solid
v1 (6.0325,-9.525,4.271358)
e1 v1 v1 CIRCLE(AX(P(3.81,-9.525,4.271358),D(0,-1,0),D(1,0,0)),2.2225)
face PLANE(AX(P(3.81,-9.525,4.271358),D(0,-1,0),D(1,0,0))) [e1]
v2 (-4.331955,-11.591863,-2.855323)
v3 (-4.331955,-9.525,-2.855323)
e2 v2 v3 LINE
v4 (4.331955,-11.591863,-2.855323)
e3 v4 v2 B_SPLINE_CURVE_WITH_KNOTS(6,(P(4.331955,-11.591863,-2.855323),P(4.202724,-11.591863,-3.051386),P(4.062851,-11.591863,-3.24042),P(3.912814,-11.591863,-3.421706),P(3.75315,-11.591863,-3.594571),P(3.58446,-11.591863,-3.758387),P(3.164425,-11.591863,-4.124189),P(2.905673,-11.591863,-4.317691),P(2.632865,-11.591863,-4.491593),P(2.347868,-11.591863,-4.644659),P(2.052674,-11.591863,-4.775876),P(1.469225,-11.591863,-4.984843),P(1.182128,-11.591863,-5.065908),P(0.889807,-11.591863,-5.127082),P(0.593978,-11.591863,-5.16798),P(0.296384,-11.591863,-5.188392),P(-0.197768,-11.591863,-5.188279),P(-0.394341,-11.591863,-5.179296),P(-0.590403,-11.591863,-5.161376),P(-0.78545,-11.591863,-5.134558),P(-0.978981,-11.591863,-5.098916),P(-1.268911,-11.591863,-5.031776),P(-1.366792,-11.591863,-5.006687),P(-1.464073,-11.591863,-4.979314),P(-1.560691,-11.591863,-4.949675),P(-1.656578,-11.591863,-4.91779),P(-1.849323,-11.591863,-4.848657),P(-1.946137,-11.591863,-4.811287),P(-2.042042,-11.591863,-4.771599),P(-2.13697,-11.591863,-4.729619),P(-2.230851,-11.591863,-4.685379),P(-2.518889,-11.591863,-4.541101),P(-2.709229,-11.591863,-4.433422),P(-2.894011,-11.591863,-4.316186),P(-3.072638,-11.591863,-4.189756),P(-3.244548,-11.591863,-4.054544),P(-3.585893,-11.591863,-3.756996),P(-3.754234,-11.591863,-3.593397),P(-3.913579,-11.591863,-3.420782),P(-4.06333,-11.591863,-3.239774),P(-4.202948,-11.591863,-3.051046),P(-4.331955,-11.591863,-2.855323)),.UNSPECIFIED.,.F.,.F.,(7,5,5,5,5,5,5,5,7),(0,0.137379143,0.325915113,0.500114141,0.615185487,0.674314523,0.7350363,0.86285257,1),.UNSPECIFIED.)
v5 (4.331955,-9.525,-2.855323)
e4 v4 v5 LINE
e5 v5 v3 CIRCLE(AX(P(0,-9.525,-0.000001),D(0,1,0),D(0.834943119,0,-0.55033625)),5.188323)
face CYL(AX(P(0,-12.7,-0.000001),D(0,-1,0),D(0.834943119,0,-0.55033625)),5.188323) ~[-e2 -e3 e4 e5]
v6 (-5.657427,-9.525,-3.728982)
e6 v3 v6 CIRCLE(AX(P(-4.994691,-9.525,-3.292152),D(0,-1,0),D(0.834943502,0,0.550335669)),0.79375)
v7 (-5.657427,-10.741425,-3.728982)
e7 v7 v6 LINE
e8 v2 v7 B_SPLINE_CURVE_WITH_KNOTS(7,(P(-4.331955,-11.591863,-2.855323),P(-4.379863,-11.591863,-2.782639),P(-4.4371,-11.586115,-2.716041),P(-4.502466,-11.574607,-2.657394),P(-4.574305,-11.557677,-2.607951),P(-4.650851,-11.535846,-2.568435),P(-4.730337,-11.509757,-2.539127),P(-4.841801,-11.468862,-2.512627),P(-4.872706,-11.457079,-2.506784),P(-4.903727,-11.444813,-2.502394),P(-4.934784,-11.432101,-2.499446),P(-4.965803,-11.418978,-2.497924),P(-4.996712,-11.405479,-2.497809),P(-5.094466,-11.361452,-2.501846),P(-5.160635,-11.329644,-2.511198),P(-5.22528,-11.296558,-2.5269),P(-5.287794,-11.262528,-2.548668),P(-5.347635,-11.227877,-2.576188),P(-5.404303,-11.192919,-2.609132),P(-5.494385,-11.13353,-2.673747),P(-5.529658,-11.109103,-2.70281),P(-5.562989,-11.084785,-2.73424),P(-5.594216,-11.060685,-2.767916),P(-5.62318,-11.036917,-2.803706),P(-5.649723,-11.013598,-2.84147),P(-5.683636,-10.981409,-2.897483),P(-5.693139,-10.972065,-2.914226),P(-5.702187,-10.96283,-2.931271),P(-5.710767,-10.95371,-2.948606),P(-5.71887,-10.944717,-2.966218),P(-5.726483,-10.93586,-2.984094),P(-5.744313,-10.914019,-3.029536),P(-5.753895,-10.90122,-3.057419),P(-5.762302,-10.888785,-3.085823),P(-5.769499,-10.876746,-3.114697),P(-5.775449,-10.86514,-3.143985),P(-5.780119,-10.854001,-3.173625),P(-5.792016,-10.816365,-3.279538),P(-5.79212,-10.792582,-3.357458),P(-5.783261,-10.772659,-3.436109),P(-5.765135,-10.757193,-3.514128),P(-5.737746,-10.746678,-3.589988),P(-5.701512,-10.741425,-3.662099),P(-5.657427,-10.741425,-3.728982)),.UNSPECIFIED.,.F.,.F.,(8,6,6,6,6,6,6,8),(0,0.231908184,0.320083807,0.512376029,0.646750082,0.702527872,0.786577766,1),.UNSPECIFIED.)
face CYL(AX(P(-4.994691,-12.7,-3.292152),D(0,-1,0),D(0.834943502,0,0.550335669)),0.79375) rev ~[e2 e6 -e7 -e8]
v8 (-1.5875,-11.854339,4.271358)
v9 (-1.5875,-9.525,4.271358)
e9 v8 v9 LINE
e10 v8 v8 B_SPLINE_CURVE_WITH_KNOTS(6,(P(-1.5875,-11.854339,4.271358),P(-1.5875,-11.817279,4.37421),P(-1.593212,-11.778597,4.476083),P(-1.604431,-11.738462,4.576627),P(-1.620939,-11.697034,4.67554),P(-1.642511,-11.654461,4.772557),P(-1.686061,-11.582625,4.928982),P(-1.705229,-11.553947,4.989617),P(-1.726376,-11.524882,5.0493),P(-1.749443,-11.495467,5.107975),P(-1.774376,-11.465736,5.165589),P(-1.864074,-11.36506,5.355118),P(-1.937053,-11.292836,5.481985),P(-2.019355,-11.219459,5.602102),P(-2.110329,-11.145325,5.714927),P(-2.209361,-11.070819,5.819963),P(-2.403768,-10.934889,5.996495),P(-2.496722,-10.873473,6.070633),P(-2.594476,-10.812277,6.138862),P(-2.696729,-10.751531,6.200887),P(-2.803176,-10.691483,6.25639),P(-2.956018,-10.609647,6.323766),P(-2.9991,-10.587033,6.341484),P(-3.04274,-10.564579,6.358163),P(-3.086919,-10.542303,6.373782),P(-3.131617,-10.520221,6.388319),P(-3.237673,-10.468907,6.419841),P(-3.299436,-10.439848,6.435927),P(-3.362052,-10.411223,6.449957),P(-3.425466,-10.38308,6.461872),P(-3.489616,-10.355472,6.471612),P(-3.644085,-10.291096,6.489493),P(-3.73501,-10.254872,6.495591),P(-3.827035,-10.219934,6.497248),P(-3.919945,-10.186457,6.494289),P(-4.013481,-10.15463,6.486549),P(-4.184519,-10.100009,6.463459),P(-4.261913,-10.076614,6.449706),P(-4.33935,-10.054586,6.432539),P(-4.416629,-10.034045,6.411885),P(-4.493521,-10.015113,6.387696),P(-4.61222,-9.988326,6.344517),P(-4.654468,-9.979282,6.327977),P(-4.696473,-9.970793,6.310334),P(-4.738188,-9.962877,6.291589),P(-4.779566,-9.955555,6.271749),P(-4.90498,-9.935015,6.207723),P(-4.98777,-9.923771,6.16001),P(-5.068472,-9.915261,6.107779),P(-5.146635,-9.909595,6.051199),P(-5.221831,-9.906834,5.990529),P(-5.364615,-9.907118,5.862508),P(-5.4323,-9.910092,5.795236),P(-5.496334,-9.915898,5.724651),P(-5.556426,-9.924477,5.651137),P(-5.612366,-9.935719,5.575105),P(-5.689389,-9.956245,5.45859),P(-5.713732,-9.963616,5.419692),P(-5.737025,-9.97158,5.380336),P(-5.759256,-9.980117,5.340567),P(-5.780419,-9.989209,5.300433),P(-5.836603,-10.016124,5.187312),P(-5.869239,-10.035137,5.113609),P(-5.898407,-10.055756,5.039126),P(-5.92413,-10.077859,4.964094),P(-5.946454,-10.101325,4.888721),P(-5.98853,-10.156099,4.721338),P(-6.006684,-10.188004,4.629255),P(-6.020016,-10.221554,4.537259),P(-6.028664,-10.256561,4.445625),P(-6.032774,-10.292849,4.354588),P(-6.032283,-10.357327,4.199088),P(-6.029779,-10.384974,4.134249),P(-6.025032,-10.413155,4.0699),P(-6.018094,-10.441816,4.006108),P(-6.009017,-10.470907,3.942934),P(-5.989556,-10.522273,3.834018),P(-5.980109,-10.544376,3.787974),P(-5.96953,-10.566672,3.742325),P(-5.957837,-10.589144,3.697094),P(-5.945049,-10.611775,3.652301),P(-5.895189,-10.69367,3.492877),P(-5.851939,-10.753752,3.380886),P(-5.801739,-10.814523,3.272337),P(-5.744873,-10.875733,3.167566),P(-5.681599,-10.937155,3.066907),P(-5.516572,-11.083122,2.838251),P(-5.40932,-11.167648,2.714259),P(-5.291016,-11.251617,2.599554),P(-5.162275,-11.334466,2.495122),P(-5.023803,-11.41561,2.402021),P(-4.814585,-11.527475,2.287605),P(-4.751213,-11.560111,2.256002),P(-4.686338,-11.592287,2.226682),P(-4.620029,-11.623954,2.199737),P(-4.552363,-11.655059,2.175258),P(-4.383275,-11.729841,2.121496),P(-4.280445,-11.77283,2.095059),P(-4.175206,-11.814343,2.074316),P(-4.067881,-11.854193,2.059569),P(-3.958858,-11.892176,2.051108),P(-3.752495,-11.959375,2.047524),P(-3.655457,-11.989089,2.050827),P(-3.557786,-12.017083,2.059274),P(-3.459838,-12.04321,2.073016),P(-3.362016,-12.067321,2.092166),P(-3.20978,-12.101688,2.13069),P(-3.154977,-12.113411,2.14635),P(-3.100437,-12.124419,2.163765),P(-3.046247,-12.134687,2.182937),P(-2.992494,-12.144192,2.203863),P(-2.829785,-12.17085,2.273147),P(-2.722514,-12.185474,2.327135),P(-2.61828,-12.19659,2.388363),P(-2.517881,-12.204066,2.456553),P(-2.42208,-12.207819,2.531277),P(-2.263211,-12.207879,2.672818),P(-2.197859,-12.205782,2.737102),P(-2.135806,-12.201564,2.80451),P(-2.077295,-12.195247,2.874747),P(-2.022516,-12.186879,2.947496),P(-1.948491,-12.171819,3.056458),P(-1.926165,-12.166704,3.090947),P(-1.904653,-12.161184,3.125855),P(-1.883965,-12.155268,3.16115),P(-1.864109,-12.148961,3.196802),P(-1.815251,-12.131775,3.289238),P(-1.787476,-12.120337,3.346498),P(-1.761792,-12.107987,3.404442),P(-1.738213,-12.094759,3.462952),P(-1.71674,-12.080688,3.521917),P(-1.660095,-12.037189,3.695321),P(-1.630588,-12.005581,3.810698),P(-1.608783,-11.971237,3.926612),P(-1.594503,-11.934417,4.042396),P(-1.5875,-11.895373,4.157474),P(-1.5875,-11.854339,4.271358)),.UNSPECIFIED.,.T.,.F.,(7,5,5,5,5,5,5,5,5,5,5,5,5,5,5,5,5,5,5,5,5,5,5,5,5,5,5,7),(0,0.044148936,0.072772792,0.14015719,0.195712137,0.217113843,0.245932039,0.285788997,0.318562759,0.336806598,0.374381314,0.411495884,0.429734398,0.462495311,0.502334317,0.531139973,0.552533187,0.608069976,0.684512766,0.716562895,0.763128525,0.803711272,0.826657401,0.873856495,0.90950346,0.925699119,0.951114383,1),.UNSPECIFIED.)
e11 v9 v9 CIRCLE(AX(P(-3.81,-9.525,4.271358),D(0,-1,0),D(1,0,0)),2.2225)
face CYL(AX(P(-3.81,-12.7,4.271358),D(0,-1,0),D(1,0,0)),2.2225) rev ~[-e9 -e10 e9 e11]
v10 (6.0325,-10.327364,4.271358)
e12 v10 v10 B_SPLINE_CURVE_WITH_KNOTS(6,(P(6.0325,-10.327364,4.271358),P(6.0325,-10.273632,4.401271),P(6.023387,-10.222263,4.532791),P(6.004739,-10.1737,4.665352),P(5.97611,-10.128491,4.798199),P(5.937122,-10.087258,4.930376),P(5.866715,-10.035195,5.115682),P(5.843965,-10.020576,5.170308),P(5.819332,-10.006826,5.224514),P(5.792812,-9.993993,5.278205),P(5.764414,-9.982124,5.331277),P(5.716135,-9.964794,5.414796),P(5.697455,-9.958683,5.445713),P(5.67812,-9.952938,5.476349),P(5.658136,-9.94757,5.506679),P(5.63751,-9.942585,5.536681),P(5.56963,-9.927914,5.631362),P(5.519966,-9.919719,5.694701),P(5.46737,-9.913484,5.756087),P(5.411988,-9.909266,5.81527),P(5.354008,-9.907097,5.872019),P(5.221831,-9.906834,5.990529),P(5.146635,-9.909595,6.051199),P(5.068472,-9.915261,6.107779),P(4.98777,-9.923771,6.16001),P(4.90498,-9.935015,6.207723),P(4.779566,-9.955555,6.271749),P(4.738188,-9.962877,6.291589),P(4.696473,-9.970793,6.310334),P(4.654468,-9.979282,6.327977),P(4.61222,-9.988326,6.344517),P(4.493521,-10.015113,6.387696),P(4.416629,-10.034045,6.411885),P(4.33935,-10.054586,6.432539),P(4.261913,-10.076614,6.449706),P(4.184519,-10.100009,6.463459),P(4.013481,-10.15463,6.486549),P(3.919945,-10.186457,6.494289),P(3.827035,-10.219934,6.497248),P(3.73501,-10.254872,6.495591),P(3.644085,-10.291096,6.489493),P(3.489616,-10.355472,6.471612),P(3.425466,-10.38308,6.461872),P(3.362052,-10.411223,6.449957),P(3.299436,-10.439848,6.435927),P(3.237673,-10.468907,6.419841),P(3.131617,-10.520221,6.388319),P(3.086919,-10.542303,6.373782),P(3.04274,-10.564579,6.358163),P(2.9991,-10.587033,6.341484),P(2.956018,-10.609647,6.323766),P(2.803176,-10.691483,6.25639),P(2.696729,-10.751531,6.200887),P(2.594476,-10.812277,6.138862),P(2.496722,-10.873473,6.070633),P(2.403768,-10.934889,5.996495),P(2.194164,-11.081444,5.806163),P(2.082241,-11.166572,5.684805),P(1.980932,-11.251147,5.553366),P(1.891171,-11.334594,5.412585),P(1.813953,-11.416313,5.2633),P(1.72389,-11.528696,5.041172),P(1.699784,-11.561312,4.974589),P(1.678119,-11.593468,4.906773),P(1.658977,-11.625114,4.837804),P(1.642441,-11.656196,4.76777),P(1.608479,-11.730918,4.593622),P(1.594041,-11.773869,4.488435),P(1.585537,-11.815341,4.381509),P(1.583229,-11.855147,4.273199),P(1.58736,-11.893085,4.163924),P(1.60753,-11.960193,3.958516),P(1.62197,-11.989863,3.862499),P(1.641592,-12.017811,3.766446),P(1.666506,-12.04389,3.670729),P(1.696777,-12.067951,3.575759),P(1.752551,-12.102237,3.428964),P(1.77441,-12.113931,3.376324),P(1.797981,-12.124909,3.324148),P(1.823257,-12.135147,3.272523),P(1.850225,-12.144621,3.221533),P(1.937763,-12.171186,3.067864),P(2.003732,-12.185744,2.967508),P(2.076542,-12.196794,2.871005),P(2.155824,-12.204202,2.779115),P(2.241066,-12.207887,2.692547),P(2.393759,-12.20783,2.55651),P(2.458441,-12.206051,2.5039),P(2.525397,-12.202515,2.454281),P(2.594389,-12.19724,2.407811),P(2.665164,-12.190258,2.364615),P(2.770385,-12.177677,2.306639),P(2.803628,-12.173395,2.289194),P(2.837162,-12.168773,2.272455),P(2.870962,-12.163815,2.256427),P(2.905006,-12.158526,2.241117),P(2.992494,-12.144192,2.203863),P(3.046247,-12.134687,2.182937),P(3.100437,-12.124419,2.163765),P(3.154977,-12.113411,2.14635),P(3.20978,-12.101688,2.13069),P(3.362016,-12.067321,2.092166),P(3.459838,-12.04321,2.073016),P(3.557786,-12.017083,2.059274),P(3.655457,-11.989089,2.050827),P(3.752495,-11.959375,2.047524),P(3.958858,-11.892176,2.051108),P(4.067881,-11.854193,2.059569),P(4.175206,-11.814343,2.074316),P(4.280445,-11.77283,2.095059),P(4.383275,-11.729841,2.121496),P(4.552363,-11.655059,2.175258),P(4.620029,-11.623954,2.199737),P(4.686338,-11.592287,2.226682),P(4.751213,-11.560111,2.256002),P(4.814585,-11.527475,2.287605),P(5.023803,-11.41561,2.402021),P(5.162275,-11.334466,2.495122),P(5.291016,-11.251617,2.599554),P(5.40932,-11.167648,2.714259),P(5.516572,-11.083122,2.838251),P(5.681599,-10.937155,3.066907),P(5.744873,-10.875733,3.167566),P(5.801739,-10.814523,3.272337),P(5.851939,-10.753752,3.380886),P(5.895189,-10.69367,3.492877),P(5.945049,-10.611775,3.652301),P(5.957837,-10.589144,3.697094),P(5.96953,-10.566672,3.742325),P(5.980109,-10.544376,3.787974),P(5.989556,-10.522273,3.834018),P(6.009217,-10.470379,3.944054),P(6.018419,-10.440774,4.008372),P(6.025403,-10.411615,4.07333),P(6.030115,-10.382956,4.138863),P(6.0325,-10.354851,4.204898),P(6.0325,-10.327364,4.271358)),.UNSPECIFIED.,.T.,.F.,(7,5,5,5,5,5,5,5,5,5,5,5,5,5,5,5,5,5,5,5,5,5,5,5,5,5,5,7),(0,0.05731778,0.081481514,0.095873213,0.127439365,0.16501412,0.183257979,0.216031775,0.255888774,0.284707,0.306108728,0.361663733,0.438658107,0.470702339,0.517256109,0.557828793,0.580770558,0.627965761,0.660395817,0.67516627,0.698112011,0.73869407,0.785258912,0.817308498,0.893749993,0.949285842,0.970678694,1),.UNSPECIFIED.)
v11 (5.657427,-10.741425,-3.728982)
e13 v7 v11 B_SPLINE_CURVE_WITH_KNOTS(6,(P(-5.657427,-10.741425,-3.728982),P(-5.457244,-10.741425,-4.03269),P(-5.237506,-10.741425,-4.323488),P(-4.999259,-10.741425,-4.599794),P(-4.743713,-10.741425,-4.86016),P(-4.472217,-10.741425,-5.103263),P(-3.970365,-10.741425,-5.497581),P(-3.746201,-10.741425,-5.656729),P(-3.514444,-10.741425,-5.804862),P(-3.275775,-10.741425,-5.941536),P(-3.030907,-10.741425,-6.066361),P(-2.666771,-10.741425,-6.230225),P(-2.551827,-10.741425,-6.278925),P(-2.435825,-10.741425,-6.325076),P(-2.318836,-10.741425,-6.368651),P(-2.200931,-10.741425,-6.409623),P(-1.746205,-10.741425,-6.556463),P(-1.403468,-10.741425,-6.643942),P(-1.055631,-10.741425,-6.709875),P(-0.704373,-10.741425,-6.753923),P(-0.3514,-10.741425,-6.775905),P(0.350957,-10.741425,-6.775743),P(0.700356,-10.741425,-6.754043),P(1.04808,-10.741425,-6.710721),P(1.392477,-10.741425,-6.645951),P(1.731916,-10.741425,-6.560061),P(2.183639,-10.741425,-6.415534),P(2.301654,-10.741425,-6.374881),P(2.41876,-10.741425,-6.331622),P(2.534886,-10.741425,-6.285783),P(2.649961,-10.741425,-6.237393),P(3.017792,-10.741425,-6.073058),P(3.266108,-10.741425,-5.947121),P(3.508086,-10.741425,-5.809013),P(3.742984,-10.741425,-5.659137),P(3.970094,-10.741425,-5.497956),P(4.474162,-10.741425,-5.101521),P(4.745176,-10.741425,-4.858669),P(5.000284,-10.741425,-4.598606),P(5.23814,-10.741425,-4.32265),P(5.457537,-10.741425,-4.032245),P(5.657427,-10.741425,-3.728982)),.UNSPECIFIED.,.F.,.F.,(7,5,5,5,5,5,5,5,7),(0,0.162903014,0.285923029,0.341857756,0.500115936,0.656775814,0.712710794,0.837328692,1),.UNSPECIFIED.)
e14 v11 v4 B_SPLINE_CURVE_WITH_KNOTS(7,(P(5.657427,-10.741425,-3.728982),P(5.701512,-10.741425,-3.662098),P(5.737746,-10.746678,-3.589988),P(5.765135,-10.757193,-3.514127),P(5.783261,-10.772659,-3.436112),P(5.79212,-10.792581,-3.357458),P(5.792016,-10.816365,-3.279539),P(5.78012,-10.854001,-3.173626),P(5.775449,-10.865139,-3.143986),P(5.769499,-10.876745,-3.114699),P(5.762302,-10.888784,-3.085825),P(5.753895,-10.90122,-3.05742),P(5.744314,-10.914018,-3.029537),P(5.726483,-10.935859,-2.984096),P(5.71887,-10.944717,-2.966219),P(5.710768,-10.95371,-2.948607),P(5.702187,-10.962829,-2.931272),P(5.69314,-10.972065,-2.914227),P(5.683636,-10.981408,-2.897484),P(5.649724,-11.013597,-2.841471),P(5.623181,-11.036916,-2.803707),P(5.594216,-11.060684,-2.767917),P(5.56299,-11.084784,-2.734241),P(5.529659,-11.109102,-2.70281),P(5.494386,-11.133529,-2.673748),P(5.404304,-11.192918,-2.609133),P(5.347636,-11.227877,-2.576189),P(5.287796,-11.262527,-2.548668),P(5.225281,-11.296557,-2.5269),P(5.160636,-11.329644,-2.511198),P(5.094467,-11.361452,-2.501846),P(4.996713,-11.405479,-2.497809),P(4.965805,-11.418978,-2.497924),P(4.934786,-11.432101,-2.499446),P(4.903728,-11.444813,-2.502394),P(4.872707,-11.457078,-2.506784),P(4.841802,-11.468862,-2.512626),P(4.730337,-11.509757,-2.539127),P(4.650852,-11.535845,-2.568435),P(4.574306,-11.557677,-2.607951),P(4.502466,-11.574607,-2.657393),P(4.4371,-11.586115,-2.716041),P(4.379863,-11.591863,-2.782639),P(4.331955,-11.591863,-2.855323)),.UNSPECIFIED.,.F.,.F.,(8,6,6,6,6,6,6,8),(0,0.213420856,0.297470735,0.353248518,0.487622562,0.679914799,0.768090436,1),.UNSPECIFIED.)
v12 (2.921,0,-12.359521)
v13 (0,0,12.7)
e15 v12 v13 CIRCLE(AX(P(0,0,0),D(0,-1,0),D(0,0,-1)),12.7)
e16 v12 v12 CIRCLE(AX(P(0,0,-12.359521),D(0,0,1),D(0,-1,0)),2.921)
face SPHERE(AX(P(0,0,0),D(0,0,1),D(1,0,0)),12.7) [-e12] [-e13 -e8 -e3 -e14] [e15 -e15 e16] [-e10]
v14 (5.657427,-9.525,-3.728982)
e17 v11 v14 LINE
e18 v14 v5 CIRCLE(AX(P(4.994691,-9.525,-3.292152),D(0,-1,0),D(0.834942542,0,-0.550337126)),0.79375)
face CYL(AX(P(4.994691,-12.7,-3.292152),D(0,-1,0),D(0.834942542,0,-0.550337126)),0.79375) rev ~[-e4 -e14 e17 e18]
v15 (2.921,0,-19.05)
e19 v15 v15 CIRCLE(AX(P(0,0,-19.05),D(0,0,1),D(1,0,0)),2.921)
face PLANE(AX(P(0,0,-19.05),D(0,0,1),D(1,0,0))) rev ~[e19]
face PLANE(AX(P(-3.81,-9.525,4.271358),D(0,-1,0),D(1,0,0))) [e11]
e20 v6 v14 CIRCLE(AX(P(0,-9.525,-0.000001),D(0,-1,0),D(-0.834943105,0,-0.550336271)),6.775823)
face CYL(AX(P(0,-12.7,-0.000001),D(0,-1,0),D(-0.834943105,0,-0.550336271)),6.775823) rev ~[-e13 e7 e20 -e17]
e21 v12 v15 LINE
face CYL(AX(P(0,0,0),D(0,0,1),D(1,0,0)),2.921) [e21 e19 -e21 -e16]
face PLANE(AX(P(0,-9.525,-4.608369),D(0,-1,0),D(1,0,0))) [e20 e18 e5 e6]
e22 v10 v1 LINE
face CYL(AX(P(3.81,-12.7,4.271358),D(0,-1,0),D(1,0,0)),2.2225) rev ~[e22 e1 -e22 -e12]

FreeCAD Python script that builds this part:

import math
import FreeCAD as App
import Part
import Sketcher

V = App.Vector
Q = App.Units.Quantity

doc = App.newDocument("Part")
body = doc.addObject("PartDesign::Body", "Body")

sketch1 = doc.addObject("Sketcher::SketchObject", "Sketch")
body.addObject(sketch1)
sketch1.AttachmentSupport = (doc.XZ_Plane, [""])
sketch1.MapMode = "FlatFace"
sketch1.addGeometry([
    Part.ArcOfCircle(Part.Circle(V(0, 0, 0), V(0, 0, 1), 12.7), math.radians(-90), math.radians(90)),
    Part.LineSegment(V(0, 12.7, 0), V(0, -12.7, 0)),
], False)
sketch1.addConstraint([
    Sketcher.Constraint("Coincident", 0, 1, 1, 2),
    Sketcher.Constraint("Coincident", 1, 1, 0, 2),
    Sketcher.Constraint("Vertical", 1),
    Sketcher.Constraint("Coincident", 0, 3, -1, 1),
    Sketcher.Constraint("PointOnObject", 0, 1, -2),
    Sketcher.Constraint("Radius", 0, Q("0.5 in")),
])
revolution = doc.addObject("PartDesign::Revolution", "Revolution")
body.addObject(revolution)
revolution.Profile = sketch1
revolution.ReferenceAxis = (sketch1, ["V_Axis"])
revolution.Angle = 360

sketch2 = doc.addObject("Sketcher::SketchObject", "Sketch001")
body.addObject(sketch2)
sketch2.AttachmentSupport = (doc.XY_Plane, [""])
sketch2.MapMode = "FlatFace"
sketch2.addGeometry(Part.Circle(V(0, 0, 0), V(0, 0, 1), 2.921), False)
sketch2.addConstraint([
    Sketcher.Constraint("Coincident", 0, 3, -1, 1),
    Sketcher.Constraint("Diameter", 0, Q("0.23 in")),
])
pad1 = doc.addObject("PartDesign::Pad", "Pad")
body.addObject(pad1)
pad1.Profile = sketch2
pad1.Length = Q("0.75 in")
pad1.Reversed = True

sketch3 = doc.addObject("Sketcher::SketchObject", "Sketch002")
body.addObject(sketch3)
sketch3.AttachmentSupport = (doc.XZ_Plane, [""])
sketch3.MapMode = "FlatFace"
sketch3.AttachmentOffset = App.Placement(V(0, 0, 0.5 * 25.4), App.Rotation())
sketch3.addGeometry([
    Part.Circle(V(-3.81, 4.271358, 0), V(0, 0, 1), 2.2225),
    Part.Circle(V(3.81, 4.271358, 0), V(0, 0, 1), 2.2225),
    Part.ArcOfCircle(Part.Circle(V(-4.994691, -3.292152, 0), V(0, 0, 1), 0.79375), math.radians(33.390044), math.radians(213.390144)),
    Part.ArcOfCircle(Part.Circle(V(0, -0.000001, 0), V(0, 0, 1), 6.775823), math.radians(-146.609914), math.radians(-33.390086)),
    Part.ArcOfCircle(Part.Circle(V(4.994691, -3.292152, 0), V(0, 0, 1), 0.79375), math.radians(-33.390144), math.radians(146.609956)),
    Part.ArcOfCircle(Part.Circle(V(0, -0.000001, 0), V(0, 0, 1), 5.188323), math.radians(-146.609916), math.radians(-33.390084)),
], False)
sketch3.addConstraint([
    Sketcher.Constraint("Tangent", 2, 2, 3, 1),
    Sketcher.Constraint("Tangent", 3, 2, 4, 1),
    Sketcher.Constraint("Tangent", 4, 2, 5, 2),
    Sketcher.Constraint("Tangent", 5, 1, 2, 1),
    Sketcher.Constraint("Coincident", 3, 3, -1, 1),
    Sketcher.Constraint("Coincident", 5, 3, -1, 1),
    Sketcher.Constraint("Equal", 0, 1),
    Sketcher.Constraint("Symmetric", 0, 3, 1, 3, -2),
    Sketcher.Constraint("Horizontal", 2, 3, 4, 3),
    Sketcher.Constraint("Diameter", 0, Q("0.175 in")),
    Sketcher.Constraint("Radius", 2, Q("0.03125 in")),
    Sketcher.Constraint("DistanceX", 0, 3, 1, 3, Q("0.3 in")),
    Sketcher.Constraint("Radius", 3, Q("6.775823 mm")),
    Sketcher.Constraint("DistanceY", -1, 1, 0, 3, Q("4.271358 mm")),
    Sketcher.Constraint("DistanceX", 2, 3, -1, 1, Q("4.994691 mm")),
])
pocket1 = doc.addObject("PartDesign::Pocket", "Pocket")
body.addObject(pocket1)
pocket1.Profile = sketch3
pocket1.Length = Q("0.125 in")

doc.recompute()
